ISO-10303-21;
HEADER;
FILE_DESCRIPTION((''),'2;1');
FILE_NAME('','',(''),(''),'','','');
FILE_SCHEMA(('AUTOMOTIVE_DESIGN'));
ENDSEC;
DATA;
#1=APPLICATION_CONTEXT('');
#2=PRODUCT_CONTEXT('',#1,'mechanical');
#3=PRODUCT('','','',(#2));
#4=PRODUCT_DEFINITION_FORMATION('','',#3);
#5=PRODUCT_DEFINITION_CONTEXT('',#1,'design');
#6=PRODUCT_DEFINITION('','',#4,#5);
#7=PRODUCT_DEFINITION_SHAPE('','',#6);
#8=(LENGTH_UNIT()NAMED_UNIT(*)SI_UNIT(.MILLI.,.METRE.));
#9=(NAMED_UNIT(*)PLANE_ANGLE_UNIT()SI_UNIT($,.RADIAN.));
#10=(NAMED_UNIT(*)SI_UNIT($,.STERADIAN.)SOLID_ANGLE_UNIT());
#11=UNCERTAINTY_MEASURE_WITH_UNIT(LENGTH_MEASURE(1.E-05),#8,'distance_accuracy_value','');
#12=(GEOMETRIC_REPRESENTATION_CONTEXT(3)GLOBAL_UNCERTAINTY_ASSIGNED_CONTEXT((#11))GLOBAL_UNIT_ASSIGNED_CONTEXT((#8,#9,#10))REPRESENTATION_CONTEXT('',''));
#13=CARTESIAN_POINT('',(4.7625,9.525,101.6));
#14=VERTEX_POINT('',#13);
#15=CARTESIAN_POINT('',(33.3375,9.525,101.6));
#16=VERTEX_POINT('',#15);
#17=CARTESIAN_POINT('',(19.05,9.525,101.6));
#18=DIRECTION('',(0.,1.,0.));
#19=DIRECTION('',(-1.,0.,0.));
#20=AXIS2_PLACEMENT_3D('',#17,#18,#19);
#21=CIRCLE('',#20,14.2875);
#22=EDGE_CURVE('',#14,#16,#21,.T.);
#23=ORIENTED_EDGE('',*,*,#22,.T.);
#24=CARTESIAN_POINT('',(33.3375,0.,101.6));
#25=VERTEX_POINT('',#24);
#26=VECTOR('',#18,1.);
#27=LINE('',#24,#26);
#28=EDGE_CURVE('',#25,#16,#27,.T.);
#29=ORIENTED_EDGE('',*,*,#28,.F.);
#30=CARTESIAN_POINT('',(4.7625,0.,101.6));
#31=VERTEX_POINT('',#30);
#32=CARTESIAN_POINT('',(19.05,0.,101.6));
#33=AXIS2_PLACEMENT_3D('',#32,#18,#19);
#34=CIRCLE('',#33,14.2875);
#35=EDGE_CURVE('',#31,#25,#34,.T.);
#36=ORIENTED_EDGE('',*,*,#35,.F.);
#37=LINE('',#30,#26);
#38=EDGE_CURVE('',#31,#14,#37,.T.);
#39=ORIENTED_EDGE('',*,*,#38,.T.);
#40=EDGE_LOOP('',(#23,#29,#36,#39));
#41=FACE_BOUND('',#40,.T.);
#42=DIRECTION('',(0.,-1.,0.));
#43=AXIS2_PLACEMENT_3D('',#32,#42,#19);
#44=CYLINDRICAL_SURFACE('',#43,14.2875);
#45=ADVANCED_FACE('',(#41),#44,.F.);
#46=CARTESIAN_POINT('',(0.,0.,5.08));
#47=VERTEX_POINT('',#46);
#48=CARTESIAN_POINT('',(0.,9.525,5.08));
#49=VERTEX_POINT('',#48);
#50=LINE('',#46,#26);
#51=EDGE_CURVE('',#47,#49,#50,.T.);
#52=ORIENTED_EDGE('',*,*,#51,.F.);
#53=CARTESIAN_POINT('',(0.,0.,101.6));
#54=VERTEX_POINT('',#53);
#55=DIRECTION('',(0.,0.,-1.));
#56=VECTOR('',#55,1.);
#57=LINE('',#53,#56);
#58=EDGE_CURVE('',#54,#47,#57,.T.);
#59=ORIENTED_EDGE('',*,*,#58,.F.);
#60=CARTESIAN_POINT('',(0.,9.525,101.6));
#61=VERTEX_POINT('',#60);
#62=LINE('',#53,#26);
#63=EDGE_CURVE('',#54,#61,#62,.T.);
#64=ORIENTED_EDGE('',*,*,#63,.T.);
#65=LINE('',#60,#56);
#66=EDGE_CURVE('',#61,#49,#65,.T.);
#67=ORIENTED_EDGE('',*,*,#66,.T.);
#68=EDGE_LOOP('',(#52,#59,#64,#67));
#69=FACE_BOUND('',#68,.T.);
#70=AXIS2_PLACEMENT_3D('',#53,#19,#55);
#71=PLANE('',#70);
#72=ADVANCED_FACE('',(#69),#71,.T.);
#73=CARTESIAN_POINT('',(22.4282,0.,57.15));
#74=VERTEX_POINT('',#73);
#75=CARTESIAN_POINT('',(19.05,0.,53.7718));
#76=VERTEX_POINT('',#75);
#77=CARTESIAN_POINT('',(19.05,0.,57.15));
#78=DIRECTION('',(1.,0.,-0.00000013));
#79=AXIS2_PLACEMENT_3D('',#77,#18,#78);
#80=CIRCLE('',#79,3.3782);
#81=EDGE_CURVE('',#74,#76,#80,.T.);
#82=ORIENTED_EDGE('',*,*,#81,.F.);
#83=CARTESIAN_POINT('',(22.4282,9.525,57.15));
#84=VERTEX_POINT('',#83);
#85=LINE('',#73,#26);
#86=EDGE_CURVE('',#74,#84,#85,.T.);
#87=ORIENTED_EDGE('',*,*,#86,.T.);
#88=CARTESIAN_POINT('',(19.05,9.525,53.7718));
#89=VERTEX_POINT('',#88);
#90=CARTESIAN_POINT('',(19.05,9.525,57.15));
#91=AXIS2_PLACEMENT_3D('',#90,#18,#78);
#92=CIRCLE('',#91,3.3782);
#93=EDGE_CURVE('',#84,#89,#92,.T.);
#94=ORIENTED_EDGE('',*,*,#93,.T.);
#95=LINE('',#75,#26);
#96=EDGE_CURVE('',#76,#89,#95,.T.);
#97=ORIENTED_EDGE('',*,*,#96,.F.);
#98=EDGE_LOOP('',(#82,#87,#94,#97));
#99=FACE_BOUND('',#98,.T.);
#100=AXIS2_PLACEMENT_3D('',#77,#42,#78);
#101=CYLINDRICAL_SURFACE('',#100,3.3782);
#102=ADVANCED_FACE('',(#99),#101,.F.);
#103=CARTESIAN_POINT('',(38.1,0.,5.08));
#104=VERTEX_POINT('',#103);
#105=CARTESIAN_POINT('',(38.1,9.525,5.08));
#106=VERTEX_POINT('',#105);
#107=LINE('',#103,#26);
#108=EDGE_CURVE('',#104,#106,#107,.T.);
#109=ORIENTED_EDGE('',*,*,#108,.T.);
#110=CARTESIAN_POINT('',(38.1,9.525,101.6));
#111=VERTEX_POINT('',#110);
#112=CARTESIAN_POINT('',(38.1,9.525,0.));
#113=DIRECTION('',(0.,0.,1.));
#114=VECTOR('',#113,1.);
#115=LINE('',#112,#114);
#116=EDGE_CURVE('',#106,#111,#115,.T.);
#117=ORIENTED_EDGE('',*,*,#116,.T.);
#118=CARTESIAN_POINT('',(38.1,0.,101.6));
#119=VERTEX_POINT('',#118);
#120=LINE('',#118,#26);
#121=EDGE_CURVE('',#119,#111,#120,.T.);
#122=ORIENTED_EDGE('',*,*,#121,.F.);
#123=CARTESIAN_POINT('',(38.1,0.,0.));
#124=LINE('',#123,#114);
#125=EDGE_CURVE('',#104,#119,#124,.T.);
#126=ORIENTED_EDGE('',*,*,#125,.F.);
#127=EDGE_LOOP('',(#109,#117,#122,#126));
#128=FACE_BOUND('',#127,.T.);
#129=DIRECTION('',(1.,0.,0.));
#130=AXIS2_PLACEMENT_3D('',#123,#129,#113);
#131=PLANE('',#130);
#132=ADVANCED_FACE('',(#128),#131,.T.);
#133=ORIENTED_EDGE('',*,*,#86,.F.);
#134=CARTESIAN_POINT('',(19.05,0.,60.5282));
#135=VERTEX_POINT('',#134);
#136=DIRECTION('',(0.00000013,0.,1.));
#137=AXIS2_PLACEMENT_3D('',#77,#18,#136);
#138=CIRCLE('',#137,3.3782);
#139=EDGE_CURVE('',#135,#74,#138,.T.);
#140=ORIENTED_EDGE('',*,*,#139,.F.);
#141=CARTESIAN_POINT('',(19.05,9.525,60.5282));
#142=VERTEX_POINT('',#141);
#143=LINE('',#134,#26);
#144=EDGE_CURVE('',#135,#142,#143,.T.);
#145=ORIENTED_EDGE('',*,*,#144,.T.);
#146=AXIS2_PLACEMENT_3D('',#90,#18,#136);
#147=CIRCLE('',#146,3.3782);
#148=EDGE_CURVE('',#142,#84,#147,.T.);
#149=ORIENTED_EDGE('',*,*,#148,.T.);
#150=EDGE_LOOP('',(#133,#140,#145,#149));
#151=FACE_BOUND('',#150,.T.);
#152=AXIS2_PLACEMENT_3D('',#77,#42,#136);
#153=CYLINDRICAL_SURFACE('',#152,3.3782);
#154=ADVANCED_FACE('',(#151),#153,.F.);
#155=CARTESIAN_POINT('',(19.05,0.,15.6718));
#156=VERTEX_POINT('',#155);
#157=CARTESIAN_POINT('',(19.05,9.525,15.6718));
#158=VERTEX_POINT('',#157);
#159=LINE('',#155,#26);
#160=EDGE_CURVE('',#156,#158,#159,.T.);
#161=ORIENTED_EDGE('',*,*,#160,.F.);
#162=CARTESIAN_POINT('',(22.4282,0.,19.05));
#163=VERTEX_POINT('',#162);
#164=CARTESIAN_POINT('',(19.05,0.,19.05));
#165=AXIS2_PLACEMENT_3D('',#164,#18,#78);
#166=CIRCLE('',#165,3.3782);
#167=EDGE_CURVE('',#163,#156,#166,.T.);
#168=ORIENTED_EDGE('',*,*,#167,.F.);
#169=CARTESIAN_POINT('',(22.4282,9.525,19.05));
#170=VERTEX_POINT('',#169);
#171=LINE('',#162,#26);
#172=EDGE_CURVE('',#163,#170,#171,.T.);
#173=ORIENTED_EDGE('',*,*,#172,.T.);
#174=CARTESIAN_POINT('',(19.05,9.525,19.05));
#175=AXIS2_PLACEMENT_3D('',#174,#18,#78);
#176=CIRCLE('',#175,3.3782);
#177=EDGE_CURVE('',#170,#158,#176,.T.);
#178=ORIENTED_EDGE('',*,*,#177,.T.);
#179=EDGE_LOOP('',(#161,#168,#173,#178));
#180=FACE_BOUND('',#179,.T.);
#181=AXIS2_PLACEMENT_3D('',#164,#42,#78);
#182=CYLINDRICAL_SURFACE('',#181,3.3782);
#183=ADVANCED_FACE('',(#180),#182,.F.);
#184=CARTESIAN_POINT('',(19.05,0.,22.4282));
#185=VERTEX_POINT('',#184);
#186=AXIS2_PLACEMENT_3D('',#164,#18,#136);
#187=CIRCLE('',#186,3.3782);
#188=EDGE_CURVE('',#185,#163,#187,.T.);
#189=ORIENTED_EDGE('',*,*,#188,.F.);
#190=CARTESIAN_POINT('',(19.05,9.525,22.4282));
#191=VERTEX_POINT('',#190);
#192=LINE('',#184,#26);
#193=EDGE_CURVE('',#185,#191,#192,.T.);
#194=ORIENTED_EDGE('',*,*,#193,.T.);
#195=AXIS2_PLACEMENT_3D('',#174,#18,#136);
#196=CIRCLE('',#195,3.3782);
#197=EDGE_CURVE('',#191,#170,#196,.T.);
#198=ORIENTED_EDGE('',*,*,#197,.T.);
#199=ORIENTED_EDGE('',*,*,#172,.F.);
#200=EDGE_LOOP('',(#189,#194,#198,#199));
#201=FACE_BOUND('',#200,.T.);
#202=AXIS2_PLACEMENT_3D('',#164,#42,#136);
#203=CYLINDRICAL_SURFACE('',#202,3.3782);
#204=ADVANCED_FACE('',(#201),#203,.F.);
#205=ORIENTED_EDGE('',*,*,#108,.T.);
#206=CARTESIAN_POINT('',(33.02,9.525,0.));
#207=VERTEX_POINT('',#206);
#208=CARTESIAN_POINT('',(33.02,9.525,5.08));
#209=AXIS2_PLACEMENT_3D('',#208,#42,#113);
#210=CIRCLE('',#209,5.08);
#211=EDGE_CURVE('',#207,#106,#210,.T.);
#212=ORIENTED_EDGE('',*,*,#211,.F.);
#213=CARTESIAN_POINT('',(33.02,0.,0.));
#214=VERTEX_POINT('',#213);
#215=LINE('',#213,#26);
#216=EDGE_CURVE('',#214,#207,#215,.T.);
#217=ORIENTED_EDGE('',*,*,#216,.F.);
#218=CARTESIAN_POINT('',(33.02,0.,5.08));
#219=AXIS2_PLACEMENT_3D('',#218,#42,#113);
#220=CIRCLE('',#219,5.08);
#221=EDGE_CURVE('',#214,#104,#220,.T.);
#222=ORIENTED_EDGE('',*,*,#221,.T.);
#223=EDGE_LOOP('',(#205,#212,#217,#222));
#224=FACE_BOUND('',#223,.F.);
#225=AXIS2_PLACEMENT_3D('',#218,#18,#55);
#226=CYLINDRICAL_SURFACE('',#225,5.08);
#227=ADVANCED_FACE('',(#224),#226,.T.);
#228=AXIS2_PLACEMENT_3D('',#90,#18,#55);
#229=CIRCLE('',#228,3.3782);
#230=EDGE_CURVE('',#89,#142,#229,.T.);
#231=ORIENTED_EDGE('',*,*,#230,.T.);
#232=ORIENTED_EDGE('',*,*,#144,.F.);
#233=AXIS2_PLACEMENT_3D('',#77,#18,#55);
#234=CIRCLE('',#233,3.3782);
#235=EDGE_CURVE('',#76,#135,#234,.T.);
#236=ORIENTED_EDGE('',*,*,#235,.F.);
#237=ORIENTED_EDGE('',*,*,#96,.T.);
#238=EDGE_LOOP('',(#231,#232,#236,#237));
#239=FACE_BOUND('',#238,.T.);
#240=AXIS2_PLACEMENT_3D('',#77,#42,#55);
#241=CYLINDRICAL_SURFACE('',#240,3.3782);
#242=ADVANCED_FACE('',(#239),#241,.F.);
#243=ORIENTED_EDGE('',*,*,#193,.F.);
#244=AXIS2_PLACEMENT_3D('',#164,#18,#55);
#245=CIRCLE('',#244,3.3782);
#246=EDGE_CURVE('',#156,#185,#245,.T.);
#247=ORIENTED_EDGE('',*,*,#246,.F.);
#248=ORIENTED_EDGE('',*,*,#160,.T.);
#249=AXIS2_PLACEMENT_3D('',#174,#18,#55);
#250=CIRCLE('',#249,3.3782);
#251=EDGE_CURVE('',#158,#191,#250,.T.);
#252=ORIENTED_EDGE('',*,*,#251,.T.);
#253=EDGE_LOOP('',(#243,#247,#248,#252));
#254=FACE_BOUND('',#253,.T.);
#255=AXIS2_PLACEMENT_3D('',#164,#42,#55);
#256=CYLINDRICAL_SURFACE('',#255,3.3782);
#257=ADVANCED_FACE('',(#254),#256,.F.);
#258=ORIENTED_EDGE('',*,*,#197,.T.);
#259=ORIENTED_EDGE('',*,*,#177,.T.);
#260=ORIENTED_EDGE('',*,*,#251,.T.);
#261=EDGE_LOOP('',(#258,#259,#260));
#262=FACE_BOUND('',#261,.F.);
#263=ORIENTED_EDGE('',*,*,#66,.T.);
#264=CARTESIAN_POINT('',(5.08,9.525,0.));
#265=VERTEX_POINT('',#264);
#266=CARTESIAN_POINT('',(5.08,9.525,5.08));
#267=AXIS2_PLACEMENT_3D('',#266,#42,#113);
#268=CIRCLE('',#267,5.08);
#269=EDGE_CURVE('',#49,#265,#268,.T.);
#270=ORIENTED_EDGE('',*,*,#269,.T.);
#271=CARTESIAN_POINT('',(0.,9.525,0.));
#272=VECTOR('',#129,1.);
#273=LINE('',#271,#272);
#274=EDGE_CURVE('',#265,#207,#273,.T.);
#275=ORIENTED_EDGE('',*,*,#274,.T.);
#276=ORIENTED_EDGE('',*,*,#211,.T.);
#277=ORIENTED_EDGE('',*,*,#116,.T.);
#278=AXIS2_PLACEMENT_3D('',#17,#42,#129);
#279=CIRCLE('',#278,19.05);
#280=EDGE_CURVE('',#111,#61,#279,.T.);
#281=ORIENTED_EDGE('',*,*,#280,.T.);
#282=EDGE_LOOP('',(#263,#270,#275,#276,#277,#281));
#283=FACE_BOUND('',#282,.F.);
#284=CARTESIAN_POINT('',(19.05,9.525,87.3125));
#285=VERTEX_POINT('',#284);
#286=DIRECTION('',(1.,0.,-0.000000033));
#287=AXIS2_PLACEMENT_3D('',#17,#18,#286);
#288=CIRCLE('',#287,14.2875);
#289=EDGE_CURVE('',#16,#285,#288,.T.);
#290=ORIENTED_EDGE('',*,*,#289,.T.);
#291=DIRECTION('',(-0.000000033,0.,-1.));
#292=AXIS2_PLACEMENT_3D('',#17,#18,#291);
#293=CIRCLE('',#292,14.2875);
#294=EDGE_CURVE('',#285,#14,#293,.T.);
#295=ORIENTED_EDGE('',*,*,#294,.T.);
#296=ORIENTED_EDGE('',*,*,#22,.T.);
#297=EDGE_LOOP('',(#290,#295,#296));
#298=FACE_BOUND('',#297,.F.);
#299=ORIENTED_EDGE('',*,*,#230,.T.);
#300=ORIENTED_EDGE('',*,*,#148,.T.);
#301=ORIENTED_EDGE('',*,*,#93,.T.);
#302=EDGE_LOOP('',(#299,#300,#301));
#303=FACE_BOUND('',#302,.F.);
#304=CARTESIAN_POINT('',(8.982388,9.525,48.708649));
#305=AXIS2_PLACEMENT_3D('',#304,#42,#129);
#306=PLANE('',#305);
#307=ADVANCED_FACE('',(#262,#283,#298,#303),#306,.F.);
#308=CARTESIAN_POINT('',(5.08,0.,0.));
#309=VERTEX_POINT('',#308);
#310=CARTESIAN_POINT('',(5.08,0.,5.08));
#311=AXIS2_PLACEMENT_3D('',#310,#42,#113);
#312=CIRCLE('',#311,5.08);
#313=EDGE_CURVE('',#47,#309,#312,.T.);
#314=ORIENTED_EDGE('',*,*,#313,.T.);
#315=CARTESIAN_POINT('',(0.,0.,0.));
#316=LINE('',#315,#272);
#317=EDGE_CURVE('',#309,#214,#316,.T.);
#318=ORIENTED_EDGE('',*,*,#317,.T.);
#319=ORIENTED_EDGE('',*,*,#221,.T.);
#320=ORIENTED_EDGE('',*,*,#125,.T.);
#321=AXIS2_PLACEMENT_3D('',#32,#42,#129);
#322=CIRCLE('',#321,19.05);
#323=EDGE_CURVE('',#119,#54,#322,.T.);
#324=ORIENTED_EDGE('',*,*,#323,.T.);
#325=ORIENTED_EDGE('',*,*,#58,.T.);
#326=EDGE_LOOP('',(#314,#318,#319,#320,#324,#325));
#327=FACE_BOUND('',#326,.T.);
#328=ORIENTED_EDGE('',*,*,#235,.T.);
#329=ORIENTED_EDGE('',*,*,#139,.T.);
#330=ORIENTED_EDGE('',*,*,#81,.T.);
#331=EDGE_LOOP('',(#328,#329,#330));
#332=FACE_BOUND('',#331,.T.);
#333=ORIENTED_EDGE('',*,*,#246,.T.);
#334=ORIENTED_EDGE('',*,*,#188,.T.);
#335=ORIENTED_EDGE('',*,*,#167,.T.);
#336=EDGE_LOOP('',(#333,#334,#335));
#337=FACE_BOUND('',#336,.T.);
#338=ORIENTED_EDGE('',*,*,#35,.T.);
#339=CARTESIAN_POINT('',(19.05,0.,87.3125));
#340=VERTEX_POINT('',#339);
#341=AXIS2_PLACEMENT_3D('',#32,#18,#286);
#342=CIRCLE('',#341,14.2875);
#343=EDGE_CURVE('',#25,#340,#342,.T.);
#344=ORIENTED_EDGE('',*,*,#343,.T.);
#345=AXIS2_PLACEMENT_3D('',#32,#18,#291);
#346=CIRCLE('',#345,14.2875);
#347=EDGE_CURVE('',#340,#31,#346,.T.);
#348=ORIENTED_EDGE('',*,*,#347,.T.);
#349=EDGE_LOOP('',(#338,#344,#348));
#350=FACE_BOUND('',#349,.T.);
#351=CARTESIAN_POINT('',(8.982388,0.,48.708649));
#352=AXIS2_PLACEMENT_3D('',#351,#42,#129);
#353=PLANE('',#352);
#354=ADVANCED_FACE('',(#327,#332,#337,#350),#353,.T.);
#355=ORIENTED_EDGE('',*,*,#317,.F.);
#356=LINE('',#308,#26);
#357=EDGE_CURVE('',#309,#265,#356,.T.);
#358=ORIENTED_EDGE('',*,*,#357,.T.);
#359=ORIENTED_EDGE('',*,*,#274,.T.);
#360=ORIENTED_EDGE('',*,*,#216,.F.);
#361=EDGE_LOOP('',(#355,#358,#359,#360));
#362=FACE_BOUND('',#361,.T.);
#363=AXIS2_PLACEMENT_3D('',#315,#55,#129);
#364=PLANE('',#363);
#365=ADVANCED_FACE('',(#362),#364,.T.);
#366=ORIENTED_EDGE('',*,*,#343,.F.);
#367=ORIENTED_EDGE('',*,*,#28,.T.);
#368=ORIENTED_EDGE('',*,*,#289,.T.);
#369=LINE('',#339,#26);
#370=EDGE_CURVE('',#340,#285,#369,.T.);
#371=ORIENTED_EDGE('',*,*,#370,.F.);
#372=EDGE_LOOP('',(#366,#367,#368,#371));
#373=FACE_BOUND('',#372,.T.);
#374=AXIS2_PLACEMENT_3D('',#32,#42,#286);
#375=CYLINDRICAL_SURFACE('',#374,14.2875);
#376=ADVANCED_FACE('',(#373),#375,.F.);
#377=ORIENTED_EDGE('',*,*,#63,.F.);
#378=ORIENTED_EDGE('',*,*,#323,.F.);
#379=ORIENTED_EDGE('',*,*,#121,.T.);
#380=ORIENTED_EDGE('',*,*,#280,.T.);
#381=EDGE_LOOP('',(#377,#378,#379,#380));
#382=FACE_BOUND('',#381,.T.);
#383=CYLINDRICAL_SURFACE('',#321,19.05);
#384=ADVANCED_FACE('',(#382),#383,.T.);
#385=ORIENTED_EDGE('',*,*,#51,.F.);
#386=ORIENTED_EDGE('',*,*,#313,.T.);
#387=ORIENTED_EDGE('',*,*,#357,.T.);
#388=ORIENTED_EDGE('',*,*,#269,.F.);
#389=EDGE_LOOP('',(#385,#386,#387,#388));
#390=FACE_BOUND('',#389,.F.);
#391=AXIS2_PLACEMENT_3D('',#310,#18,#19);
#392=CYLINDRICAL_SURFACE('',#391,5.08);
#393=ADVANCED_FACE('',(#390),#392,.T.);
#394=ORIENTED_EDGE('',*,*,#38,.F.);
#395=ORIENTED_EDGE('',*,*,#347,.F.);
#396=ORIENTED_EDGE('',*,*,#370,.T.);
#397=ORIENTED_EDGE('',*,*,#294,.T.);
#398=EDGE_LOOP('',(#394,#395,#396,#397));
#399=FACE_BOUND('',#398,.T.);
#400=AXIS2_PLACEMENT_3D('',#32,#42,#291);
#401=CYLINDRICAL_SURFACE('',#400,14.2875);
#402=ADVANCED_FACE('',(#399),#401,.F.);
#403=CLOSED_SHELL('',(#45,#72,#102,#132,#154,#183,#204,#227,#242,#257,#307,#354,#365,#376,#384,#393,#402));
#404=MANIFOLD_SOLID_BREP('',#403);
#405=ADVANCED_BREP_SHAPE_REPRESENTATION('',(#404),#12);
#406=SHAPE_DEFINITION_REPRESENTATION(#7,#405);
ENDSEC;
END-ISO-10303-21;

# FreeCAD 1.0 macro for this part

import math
import FreeCAD as App
import Part
import Sketcher

V = App.Vector
Q = App.Units.Quantity


def edges_at(feature, points):
    """Names of the edges that pass closest to the given points."""
    edges = feature.Shape.Edges
    near = lambda p: min(range(len(edges)), key=lambda i: edges[i].distToShape(Part.Vertex(*p))[0])
    return sorted({f"Edge{near(p) + 1}" for p in points})

doc = App.newDocument("Part")
body = doc.addObject("PartDesign::Body", "Body")

sketch1 = body.newObject("Sketcher::SketchObject", "Sketch")
sketch1.AttachmentSupport = (doc.getObject("XZ_Plane"), [""])
sketch1.MapMode = "FlatFace"
sketch1.addGeometry([
    Part.LineSegment(V(0, 101.6, 0), V(0, 0, 0)),
    Part.LineSegment(V(0, 0, 0), V(38.1, 0, 0)),
    Part.LineSegment(V(38.1, 0, 0), V(38.1, 101.6, 0)),
    Part.ArcOfCircle(Part.Circle(V(19.1, 101.6, 0), V(0, 0, 1), 19.1), math.radians(0), math.radians(180)),
    Part.ArcOfCircle(Part.Circle(V(19, 101.6, 0), V(0, 0, 1), 14.3), math.radians(-90), math.radians(0)),
    Part.ArcOfCircle(Part.Circle(V(19.1, 101.6, 0), V(0, 0, 1), 14.3), math.radians(-180), math.radians(-90)),
    Part.ArcOfCircle(Part.Circle(V(19.1, 101.6, 0), V(0, 0, 1), 14.3), math.radians(0), math.radians(180)),
    Part.ArcOfCircle(Part.Circle(V(19.1, 19.1, 0), V(0, 0, 1), 3.4), math.radians(90), math.radians(270)),
    Part.ArcOfCircle(Part.Circle(V(19, 19, 0), V(0, 0, 1), 3.4), math.radians(0), math.radians(90)),
    Part.ArcOfCircle(Part.Circle(V(19, 19.1, 0), V(0, 0, 1), 3.4), math.radians(-90), math.radians(0)),
    Part.ArcOfCircle(Part.Circle(V(19.1, 57.1, 0), V(0, 0, 1), 3.4), math.radians(90), math.radians(270)),
    Part.ArcOfCircle(Part.Circle(V(19, 57.1, 0), V(0, 0, 1), 3.4), math.radians(0), math.radians(90)),
    Part.ArcOfCircle(Part.Circle(V(19, 57.2, 0), V(0, 0, 1), 3.4), math.radians(-90), math.radians(0)),
], False)
sketch1.addConstraint([
    Sketcher.Constraint("Coincident", 0, 2, 1, 1),
    Sketcher.Constraint("Coincident", 1, 2, 2, 1),
    Sketcher.Constraint("Tangent", 2, 2, 3, 1),
    Sketcher.Constraint("Tangent", 3, 2, 0, 1),
    Sketcher.Constraint("Tangent", 4, 1, 5, 2),
    Sketcher.Constraint("Tangent", 5, 1, 6, 2),
    Sketcher.Constraint("Tangent", 6, 1, 4, 2),
    Sketcher.Constraint("Tangent", 7, 1, 8, 2),
    Sketcher.Constraint("Tangent", 8, 1, 9, 2),
    Sketcher.Constraint("Tangent", 9, 1, 7, 2),
    Sketcher.Constraint("Tangent", 10, 1, 11, 2),
    Sketcher.Constraint("Tangent", 11, 1, 12, 2),
    Sketcher.Constraint("Tangent", 12, 1, 10, 2),
    Sketcher.Constraint("Vertical", 0),
    Sketcher.Constraint("Horizontal", 1),
    Sketcher.Constraint("Vertical", 2),
    Sketcher.Constraint("Coincident", 0, 2, -1, 1),
    Sketcher.Constraint("Coincident", 4, 3, 3, 3),
    Sketcher.Constraint("Equal", 9, 10),
    Sketcher.Constraint("Horizontal", 3, 2, 5, 1),
    Sketcher.Constraint("Horizontal", 5, 1, 6, 1),
    Sketcher.Constraint("Horizontal", 9, 3, 8, 1),
    Sketcher.Constraint("Horizontal", 12, 3, 11, 1),
    Sketcher.Constraint("Vertical", 6, 3, 7, 3),
    Sketcher.Constraint("Vertical", 9, 3, 10, 3),
    Sketcher.Constraint("Vertical", 12, 3, 4, 1),
    Sketcher.Constraint("Vertical", 4, 1, 7, 1),
    Sketcher.Constraint("Vertical", 7, 1, 9, 1),
    Sketcher.Constraint("Vertical", 9, 1, 10, 1),
    Sketcher.Constraint("Vertical", 10, 1, 12, 1),
    Sketcher.Constraint("DistanceY", 0, 2, 0, 1, Q("4 in")),
    Sketcher.Constraint("Radius", 3, Q("0.75 in")),
    Sketcher.Constraint("Radius", 4, Q("0.5625 in")),
    Sketcher.Constraint("Radius", 7, Q("0.133 in")),
    Sketcher.Constraint("DistanceY", 9, 3, 10, 3, Q("1.5 in")),
    Sketcher.Constraint("DistanceY", -1, 1, 7, 3, Q("0.75 in")),
])
pad1 = body.newObject("PartDesign::Pad", "Pad")
pad1.Profile = sketch1
pad1.Length = Q("0.375 in")
pad1.Reversed = True
doc.recompute()

fillet = body.newObject("PartDesign::Fillet", "Fillet")
fillet.Base = (pad1, edges_at(pad1, [(38.1, 4.763, 0), (0, 4.763, 0)]))
fillet.Radius = Q("0.2 in")

doc.recompute()
